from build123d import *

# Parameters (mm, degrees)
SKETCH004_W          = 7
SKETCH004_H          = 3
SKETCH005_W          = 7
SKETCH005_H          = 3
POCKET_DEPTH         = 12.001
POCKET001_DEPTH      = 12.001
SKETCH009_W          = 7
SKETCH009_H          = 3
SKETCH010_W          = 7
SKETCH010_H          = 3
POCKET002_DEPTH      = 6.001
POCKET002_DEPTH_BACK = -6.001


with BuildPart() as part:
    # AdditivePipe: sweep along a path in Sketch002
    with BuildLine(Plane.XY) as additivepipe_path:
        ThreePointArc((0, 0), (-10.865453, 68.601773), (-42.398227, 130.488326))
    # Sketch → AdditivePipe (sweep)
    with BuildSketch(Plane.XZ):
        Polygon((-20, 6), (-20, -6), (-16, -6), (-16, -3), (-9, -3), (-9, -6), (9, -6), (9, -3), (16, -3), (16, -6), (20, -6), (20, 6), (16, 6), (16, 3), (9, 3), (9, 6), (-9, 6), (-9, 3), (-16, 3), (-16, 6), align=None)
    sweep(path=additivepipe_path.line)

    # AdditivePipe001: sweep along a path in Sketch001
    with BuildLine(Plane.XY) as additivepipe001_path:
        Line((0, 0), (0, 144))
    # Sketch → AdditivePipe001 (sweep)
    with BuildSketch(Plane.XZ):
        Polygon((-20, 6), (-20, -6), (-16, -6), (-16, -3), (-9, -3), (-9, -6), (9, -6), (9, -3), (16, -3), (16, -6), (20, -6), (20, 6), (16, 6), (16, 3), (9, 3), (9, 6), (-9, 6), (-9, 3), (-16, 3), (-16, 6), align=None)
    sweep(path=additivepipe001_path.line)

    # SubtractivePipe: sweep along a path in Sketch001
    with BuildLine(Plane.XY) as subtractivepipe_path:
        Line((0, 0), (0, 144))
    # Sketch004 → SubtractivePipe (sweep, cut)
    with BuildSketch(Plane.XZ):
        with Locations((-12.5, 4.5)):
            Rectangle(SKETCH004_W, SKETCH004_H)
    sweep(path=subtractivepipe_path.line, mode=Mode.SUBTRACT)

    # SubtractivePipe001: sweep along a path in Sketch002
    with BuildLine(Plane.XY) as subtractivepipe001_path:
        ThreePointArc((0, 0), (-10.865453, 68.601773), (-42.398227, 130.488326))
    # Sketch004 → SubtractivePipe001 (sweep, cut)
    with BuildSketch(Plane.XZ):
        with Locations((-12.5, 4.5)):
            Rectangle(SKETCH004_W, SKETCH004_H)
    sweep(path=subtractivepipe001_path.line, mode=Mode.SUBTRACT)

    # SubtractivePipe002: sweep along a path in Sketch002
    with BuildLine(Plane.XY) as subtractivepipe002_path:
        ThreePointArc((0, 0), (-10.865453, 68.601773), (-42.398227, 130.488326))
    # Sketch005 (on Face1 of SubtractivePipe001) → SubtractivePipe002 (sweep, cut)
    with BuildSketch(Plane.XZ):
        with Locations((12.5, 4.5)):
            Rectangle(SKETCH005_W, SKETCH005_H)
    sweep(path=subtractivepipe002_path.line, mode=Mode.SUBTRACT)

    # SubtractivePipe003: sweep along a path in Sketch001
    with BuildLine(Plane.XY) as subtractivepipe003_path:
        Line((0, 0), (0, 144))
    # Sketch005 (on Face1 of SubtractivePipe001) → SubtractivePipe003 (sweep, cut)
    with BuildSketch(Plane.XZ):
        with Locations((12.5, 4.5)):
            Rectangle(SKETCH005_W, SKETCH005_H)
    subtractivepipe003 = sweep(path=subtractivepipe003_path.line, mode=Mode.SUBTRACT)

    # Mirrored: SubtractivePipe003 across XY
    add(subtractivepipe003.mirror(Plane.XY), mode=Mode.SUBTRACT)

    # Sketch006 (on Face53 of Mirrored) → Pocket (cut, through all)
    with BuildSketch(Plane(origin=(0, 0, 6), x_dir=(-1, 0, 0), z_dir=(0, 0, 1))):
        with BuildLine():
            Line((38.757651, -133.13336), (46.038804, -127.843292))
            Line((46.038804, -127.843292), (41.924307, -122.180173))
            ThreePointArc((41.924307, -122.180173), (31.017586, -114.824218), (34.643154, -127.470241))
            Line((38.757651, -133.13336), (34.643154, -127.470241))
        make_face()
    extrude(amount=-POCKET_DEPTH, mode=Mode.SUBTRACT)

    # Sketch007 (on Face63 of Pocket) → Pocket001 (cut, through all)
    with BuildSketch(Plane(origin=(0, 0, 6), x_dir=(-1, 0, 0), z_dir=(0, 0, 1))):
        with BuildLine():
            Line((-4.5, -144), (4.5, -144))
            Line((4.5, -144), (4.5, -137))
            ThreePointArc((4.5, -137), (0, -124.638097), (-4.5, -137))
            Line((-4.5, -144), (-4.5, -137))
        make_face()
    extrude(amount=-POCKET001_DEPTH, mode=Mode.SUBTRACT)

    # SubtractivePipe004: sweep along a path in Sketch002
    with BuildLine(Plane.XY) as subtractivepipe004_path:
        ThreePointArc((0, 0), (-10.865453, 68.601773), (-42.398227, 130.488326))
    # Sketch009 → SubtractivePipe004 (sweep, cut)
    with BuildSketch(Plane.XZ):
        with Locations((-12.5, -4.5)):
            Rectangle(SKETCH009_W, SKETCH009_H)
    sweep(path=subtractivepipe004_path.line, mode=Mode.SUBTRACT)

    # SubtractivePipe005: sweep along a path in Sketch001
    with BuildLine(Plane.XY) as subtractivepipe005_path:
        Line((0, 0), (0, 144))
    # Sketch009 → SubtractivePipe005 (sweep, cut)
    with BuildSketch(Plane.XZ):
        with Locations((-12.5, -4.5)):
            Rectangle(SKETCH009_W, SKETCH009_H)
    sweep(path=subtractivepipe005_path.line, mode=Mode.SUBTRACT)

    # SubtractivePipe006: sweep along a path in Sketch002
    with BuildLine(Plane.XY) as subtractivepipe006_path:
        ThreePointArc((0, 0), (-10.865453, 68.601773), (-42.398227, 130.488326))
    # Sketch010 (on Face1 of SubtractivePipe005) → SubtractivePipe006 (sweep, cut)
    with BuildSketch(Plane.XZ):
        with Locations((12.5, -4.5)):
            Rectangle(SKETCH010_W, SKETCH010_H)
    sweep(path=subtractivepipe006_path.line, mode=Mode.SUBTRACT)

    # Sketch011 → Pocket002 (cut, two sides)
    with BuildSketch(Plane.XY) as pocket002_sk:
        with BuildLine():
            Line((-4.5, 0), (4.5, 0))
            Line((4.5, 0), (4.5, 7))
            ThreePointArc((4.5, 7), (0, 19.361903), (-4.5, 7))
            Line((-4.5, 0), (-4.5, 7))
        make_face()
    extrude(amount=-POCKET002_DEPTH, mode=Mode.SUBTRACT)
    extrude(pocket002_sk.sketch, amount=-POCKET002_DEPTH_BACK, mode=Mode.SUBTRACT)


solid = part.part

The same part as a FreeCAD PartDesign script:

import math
import FreeCAD as App
import Part
import Sketcher

V = App.Vector
Q = App.Units.Quantity


def add_polygon(sketch, points):
    """Adds a closed chain of lines whose ends are joined by coincident constraints."""
    first, n = sketch.GeometryCount, len(points)
    for a, b in zip(points, points[1:] + points[:1]):
        sketch.addGeometry(Part.LineSegment(App.Vector(*a, 0), App.Vector(*b, 0)), False)
    for i in range(n):
        sketch.addConstraint(Sketcher.Constraint("Coincident", first + i, 2, first + (i + 1) % n, 1))

doc = App.newDocument("Part")
body = doc.addObject("PartDesign::Body", "Body")

# Sketch on XZ plane
sketch1 = body.newObject("Sketcher::SketchObject", "Sketch")
sketch1.AttachmentSupport = (doc.getObject("XZ_Plane"), [""])
sketch1.MapMode = "FlatFace"
add_polygon(sketch1, [(-20, 6), (-20, -6), (-16, -6), (-16, -3), (-9, -3), (-9, -6), (9, -6), (9, -3), (16, -3), (16, -6), (20, -6), (20, 6), (16, 6), (16, 3), (9, 3), (9, 6), (-9, 6), (-9, 3), (-16, 3), (-16, 6)])  # lines 0-19
sketch1.addConstraint(Sketcher.Constraint("Vertical", 0))
sketch1.addConstraint(Sketcher.Constraint("Horizontal", 1))
sketch1.addConstraint(Sketcher.Constraint("Vertical", 2))
sketch1.addConstraint(Sketcher.Constraint("Horizontal", 3))
sketch1.addConstraint(Sketcher.Constraint("Vertical", 4))
sketch1.addConstraint(Sketcher.Constraint("Horizontal", 5))
sketch1.addConstraint(Sketcher.Constraint("Vertical", 6))
sketch1.addConstraint(Sketcher.Constraint("Horizontal", 7))
sketch1.addConstraint(Sketcher.Constraint("Vertical", 8))
sketch1.addConstraint(Sketcher.Constraint("Horizontal", 9))
sketch1.addConstraint(Sketcher.Constraint("Vertical", 10))
sketch1.addConstraint(Sketcher.Constraint("Horizontal", 11))
sketch1.addConstraint(Sketcher.Constraint("Vertical", 12))
sketch1.addConstraint(Sketcher.Constraint("Horizontal", 13))
sketch1.addConstraint(Sketcher.Constraint("Vertical", 14))
sketch1.addConstraint(Sketcher.Constraint("Horizontal", 15))
sketch1.addConstraint(Sketcher.Constraint("Vertical", 16))
sketch1.addConstraint(Sketcher.Constraint("Horizontal", 17))
sketch1.addConstraint(Sketcher.Constraint("Vertical", 18))
sketch1.addConstraint(Sketcher.Constraint("Horizontal", 19))
sketch1.addConstraint(Sketcher.Constraint("Symmetric", 0, 2, 10, 2, -1, 1))
sketch1.addConstraint(Sketcher.Constraint("Symmetric", 2, 2, 12, 2, -1, 1))
sketch1.addConstraint(Sketcher.Constraint("Symmetric", 4, 2, 14, 2, -1, 1))
sketch1.addConstraint(Sketcher.Constraint("Symmetric", 6, 2, 16, 2, -1, 1))
sketch1.addConstraint(Sketcher.Constraint("Symmetric", 8, 2, 18, 2, -1, 1))
sketch1.addConstraint(Sketcher.Constraint("Symmetric", 3, 2, 6, 2, -2))
sketch1.addConstraint(Sketcher.Constraint("Symmetric", 1, 2, 8, 2, -2))
sketch1.addConstraint(Sketcher.Constraint("Horizontal", 1, 2, 4, 2))
sketch1.addConstraint(Sketcher.Constraint("DistanceX", 1, 1, 1, 2, Q("4 mm")))
sketch1.addConstraint(Sketcher.Constraint("DistanceX", 3, 1, 3, 2, Q("7 mm")))
sketch1.addConstraint(Sketcher.Constraint("DistanceX", 5, 1, 5, 2, Q("18 mm")))
sketch1.addConstraint(Sketcher.Constraint("DistanceY", 0, 2, 0, 1, Q("12 mm")))
sketch1.addConstraint(Sketcher.Constraint("DistanceY", 2, 1, 2, 2, Q("3 mm")))

# Sketch on XY plane
sketch2 = body.newObject("Sketcher::SketchObject", "Sketch001")
sketch2.AttachmentSupport = (doc.getObject("XY_Plane"), [""])
sketch2.MapMode = "FlatFace"
sketch2.addGeometry(Part.ArcOfCircle(Part.Circle(V(-222, 0, 0), V(0, 0, 1), 222), math.radians(0), math.radians(36)), False)
sketch2.addConstraint(Sketcher.Constraint("Coincident", 0, 1, -1, 1))
sketch2.addConstraint(Sketcher.Constraint("Radius", 0, Q("221.999993 mm")))
sketch2.addConstraint(Sketcher.Constraint("DistanceX", 0, 2, -1, 1, Q("42.398227 mm")))
sketch2.addConstraint(Sketcher.Constraint("DistanceY", -1, 1, 0, 2, Q("130.488326 mm")))
doc.recompute()

additivepipe = body.newObject("PartDesign::AdditivePipe", "AdditivePipe")
additivepipe.Profile = sketch1
additivepipe.Spine = (sketch2, ["Edge1"])

# Sketch on XZ plane
sketch3 = body.newObject("Sketcher::SketchObject", "Sketch002")
sketch3.AttachmentSupport = (doc.getObject("XZ_Plane"), [""])
sketch3.MapMode = "FlatFace"
add_polygon(sketch3, [(-20, 6), (-20, -6), (-16, -6), (-16, -3), (-9, -3), (-9, -6), (9, -6), (9, -3), (16, -3), (16, -6), (20, -6), (20, 6), (16, 6), (16, 3), (9, 3), (9, 6), (-9, 6), (-9, 3), (-16, 3), (-16, 6)])  # lines 0-19
sketch3.addConstraint(Sketcher.Constraint("Vertical", 0))
sketch3.addConstraint(Sketcher.Constraint("Horizontal", 1))
sketch3.addConstraint(Sketcher.Constraint("Vertical", 2))
sketch3.addConstraint(Sketcher.Constraint("Horizontal", 3))
sketch3.addConstraint(Sketcher.Constraint("Vertical", 4))
sketch3.addConstraint(Sketcher.Constraint("Horizontal", 5))
sketch3.addConstraint(Sketcher.Constraint("Vertical", 6))
sketch3.addConstraint(Sketcher.Constraint("Horizontal", 7))
sketch3.addConstraint(Sketcher.Constraint("Vertical", 8))
sketch3.addConstraint(Sketcher.Constraint("Horizontal", 9))
sketch3.addConstraint(Sketcher.Constraint("Vertical", 10))
sketch3.addConstraint(Sketcher.Constraint("Horizontal", 11))
sketch3.addConstraint(Sketcher.Constraint("Vertical", 12))
sketch3.addConstraint(Sketcher.Constraint("Horizontal", 13))
sketch3.addConstraint(Sketcher.Constraint("Vertical", 14))
sketch3.addConstraint(Sketcher.Constraint("Horizontal", 15))
sketch3.addConstraint(Sketcher.Constraint("Vertical", 16))
sketch3.addConstraint(Sketcher.Constraint("Horizontal", 17))
sketch3.addConstraint(Sketcher.Constraint("Vertical", 18))
sketch3.addConstraint(Sketcher.Constraint("Horizontal", 19))
sketch3.addConstraint(Sketcher.Constraint("Symmetric", 0, 2, 10, 2, -1, 1))
sketch3.addConstraint(Sketcher.Constraint("Symmetric", 2, 2, 12, 2, -1, 1))
sketch3.addConstraint(Sketcher.Constraint("Symmetric", 4, 2, 14, 2, -1, 1))
sketch3.addConstraint(Sketcher.Constraint("Symmetric", 6, 2, 16, 2, -1, 1))
sketch3.addConstraint(Sketcher.Constraint("Symmetric", 8, 2, 18, 2, -1, 1))
sketch3.addConstraint(Sketcher.Constraint("Symmetric", 3, 2, 6, 2, -2))
sketch3.addConstraint(Sketcher.Constraint("Symmetric", 1, 2, 8, 2, -2))
sketch3.addConstraint(Sketcher.Constraint("Horizontal", 1, 2, 4, 2))
sketch3.addConstraint(Sketcher.Constraint("DistanceX", 1, 1, 1, 2, Q("4 mm")))
sketch3.addConstraint(Sketcher.Constraint("DistanceX", 3, 1, 3, 2, Q("7 mm")))
sketch3.addConstraint(Sketcher.Constraint("DistanceX", 5, 1, 5, 2, Q("18 mm")))
sketch3.addConstraint(Sketcher.Constraint("DistanceY", 0, 2, 0, 1, Q("12 mm")))
sketch3.addConstraint(Sketcher.Constraint("DistanceY", 2, 1, 2, 2, Q("3 mm")))

# Sketch on XY plane
sketch4 = body.newObject("Sketcher::SketchObject", "Sketch003")
sketch4.AttachmentSupport = (doc.getObject("XY_Plane"), [""])
sketch4.MapMode = "FlatFace"
sketch4.addGeometry(Part.LineSegment(V(0, 0, 0), V(0, 144, 0)), False)
sketch4.addConstraint(Sketcher.Constraint("Vertical", 0))
sketch4.addConstraint(Sketcher.Constraint("Coincident", 0, 1, -1, 1))
sketch4.addConstraint(Sketcher.Constraint("DistanceY", 0, 1, 0, 2, Q("144 mm")))
doc.recompute()

additivepipe2 = body.newObject("PartDesign::AdditivePipe", "AdditivePipe001")
additivepipe2.Profile = sketch3
additivepipe2.Spine = (sketch4, ["Edge1"])

# Sketch on XZ plane
sketch5 = body.newObject("Sketcher::SketchObject", "Sketch004")
sketch5.AttachmentSupport = (doc.getObject("XZ_Plane"), [""])
sketch5.MapMode = "FlatFace"
add_polygon(sketch5, [(-16, 6), (-16, 3), (-9, 3), (-9, 6)])  # lines 0-3
sketch5.addConstraint(Sketcher.Constraint("Vertical", 0))
sketch5.addConstraint(Sketcher.Constraint("Horizontal", 1))
sketch5.addConstraint(Sketcher.Constraint("Vertical", 2))
sketch5.addConstraint(Sketcher.Constraint("Horizontal", 3))
sketch5.addConstraint(Sketcher.Constraint("DistanceX", 1, 1, 1, 2, Q("7 mm")))
sketch5.addConstraint(Sketcher.Constraint("DistanceY", 0, 2, 0, 1, Q("3 mm")))
sketch5.addConstraint(Sketcher.Constraint("DistanceX", 0, 2, -1, 1, Q("16 mm")))
sketch5.addConstraint(Sketcher.Constraint("DistanceY", -1, 1, 0, 2, Q("3 mm")))

# Sketch on XY plane
sketch6 = body.newObject("Sketcher::SketchObject", "Sketch005")
sketch6.AttachmentSupport = (doc.getObject("XY_Plane"), [""])
sketch6.MapMode = "FlatFace"
sketch6.addGeometry(Part.LineSegment(V(0, 0, 0), V(0, 144, 0)), False)
sketch6.addConstraint(Sketcher.Constraint("Vertical", 0))
sketch6.addConstraint(Sketcher.Constraint("Coincident", 0, 1, -1, 1))
sketch6.addConstraint(Sketcher.Constraint("DistanceY", 0, 1, 0, 2, Q("144 mm")))
doc.recompute()

subtractivepipe = body.newObject("PartDesign::SubtractivePipe", "SubtractivePipe")
subtractivepipe.Profile = sketch5
subtractivepipe.Spine = (sketch6, ["Edge1"])

# Sketch on XZ plane
sketch7 = body.newObject("Sketcher::SketchObject", "Sketch006")
sketch7.AttachmentSupport = (doc.getObject("XZ_Plane"), [""])
sketch7.MapMode = "FlatFace"
add_polygon(sketch7, [(-16, 6), (-16, 3), (-9, 3), (-9, 6)])  # lines 0-3
sketch7.addConstraint(Sketcher.Constraint("Vertical", 0))
sketch7.addConstraint(Sketcher.Constraint("Horizontal", 1))
sketch7.addConstraint(Sketcher.Constraint("Vertical", 2))
sketch7.addConstraint(Sketcher.Constraint("Horizontal", 3))
sketch7.addConstraint(Sketcher.Constraint("DistanceX", 1, 1, 1, 2, Q("7 mm")))
sketch7.addConstraint(Sketcher.Constraint("DistanceY", 0, 2, 0, 1, Q("3 mm")))
sketch7.addConstraint(Sketcher.Constraint("DistanceX", 0, 2, -1, 1, Q("16 mm")))
sketch7.addConstraint(Sketcher.Constraint("DistanceY", -1, 1, 0, 2, Q("3 mm")))

# Sketch on XY plane
sketch8 = body.newObject("Sketcher::SketchObject", "Sketch007")
sketch8.AttachmentSupport = (doc.getObject("XY_Plane"), [""])
sketch8.MapMode = "FlatFace"
sketch8.addGeometry(Part.ArcOfCircle(Part.Circle(V(-222, 0, 0), V(0, 0, 1), 222), math.radians(0), math.radians(36)), False)
sketch8.addConstraint(Sketcher.Constraint("Coincident", 0, 1, -1, 1))
sketch8.addConstraint(Sketcher.Constraint("Radius", 0, Q("221.999993 mm")))
sketch8.addConstraint(Sketcher.Constraint("DistanceX", 0, 2, -1, 1, Q("42.398227 mm")))
sketch8.addConstraint(Sketcher.Constraint("DistanceY", -1, 1, 0, 2, Q("130.488326 mm")))
doc.recompute()

subtractivepipe2 = body.newObject("PartDesign::SubtractivePipe", "SubtractivePipe001")
subtractivepipe2.Profile = sketch7
subtractivepipe2.Spine = (sketch8, ["Edge1"])

# Sketch on XZ plane
sketch9 = body.newObject("Sketcher::SketchObject", "Sketch008")
sketch9.AttachmentSupport = (doc.getObject("XZ_Plane"), [""])
sketch9.MapMode = "FlatFace"
add_polygon(sketch9, [(9, 6), (9, 3), (16, 3), (16, 6)])  # lines 0-3
sketch9.addConstraint(Sketcher.Constraint("Vertical", 0))
sketch9.addConstraint(Sketcher.Constraint("Horizontal", 1))
sketch9.addConstraint(Sketcher.Constraint("Vertical", 2))
sketch9.addConstraint(Sketcher.Constraint("Horizontal", 3))
sketch9.addConstraint(Sketcher.Constraint("DistanceX", 1, 1, 1, 2, Q("7 mm")))
sketch9.addConstraint(Sketcher.Constraint("DistanceY", 0, 2, 0, 1, Q("3 mm")))
sketch9.addConstraint(Sketcher.Constraint("DistanceX", -1, 1, 0, 2, Q("9 mm")))
sketch9.addConstraint(Sketcher.Constraint("DistanceY", -1, 1, 0, 2, Q("3 mm")))

# Sketch on XY plane
sketch10 = body.newObject("Sketcher::SketchObject", "Sketch009")
sketch10.AttachmentSupport = (doc.getObject("XY_Plane"), [""])
sketch10.MapMode = "FlatFace"
sketch10.addGeometry(Part.ArcOfCircle(Part.Circle(V(-222, 0, 0), V(0, 0, 1), 222), math.radians(0), math.radians(36)), False)
sketch10.addConstraint(Sketcher.Constraint("Coincident", 0, 1, -1, 1))
sketch10.addConstraint(Sketcher.Constraint("Radius", 0, Q("221.999993 mm")))
sketch10.addConstraint(Sketcher.Constraint("DistanceX", 0, 2, -1, 1, Q("42.398227 mm")))
sketch10.addConstraint(Sketcher.Constraint("DistanceY", -1, 1, 0, 2, Q("130.488326 mm")))
doc.recompute()

subtractivepipe3 = body.newObject("PartDesign::SubtractivePipe", "SubtractivePipe002")
subtractivepipe3.Profile = sketch9
subtractivepipe3.Spine = (sketch10, ["Edge1"])

# Sketch on XZ plane
sketch11 = body.newObject("Sketcher::SketchObject", "Sketch010")
sketch11.AttachmentSupport = (doc.getObject("XZ_Plane"), [""])
sketch11.MapMode = "FlatFace"
add_polygon(sketch11, [(9, 6), (9, 3), (16, 3), (16, 6)])  # lines 0-3
sketch11.addConstraint(Sketcher.Constraint("Vertical", 0))
sketch11.addConstraint(Sketcher.Constraint("Horizontal", 1))
sketch11.addConstraint(Sketcher.Constraint("Vertical", 2))
sketch11.addConstraint(Sketcher.Constraint("Horizontal", 3))
sketch11.addConstraint(Sketcher.Constraint("DistanceX", 1, 1, 1, 2, Q("7 mm")))
sketch11.addConstraint(Sketcher.Constraint("DistanceY", 0, 2, 0, 1, Q("3 mm")))
sketch11.addConstraint(Sketcher.Constraint("DistanceX", -1, 1, 0, 2, Q("9 mm")))
sketch11.addConstraint(Sketcher.Constraint("DistanceY", -1, 1, 0, 2, Q("3 mm")))

# Sketch on XY plane
sketch12 = body.newObject("Sketcher::SketchObject", "Sketch011")
sketch12.AttachmentSupport = (doc.getObject("XY_Plane"), [""])
sketch12.MapMode = "FlatFace"
sketch12.addGeometry(Part.LineSegment(V(0, 0, 0), V(0, 144, 0)), False)
sketch12.addConstraint(Sketcher.Constraint("Vertical", 0))
sketch12.addConstraint(Sketcher.Constraint("Coincident", 0, 1, -1, 1))
sketch12.addConstraint(Sketcher.Constraint("DistanceY", 0, 1, 0, 2, Q("144 mm")))
doc.recompute()

subtractivepipe4 = body.newObject("PartDesign::SubtractivePipe", "SubtractivePipe003")
subtractivepipe4.Profile = sketch11
subtractivepipe4.Spine = (sketch12, ["Edge1"])
doc.recompute()

mirrored = body.newObject("PartDesign::Mirrored", "Mirrored")
mirrored.Originals = [subtractivepipe4]
mirrored.MirrorPlane = (doc.getObject("XY_Plane"), [""])
body.Tip = mirrored

# Sketch on XY plane
sketch13 = body.newObject("Sketcher::SketchObject", "Sketch012")
sketch13.AttachmentSupport = (doc.getObject("XY_Plane"), [""])
sketch13.MapMode = "FlatFace"
sketch13.AttachmentOffset = App.Placement(V(0, 0, 6), App.Rotation())
sketch13.addGeometry(Part.LineSegment(V(-39, 133, 0), V(-46, 128, 0)), False)
sketch13.addGeometry(Part.LineSegment(V(-46, 128, 0), V(-42, 122, 0)), False)
sketch13.addGeometry(Part.ArcOfCircle(Part.Circle(V(-35, 120, 0), V(0, 0, 1), 7), math.radians(166), math.radians(446)), False)
sketch13.addGeometry(Part.LineSegment(V(-35, 127, 0), V(-39, 133, 0)), False)
sketch13.addConstraint(Sketcher.Constraint("Coincident", 0, 2, 1, 1))
sketch13.addConstraint(Sketcher.Constraint("Coincident", 1, 2, 2, 1))
sketch13.addConstraint(Sketcher.Constraint("Coincident", 2, 2, 3, 1))
sketch13.addConstraint(Sketcher.Constraint("Coincident", 3, 2, 0, 1))
sketch13.addConstraint(Sketcher.Constraint("Perpendicular", 0, 1))
sketch13.addConstraint(Sketcher.Constraint("Parallel", 1, 3))
sketch13.addConstraint(Sketcher.Constraint("Equal", 1, 3))
sketch13.addConstraint(Sketcher.Constraint("Radius", 2, Q("7 mm")))
sketch13.addConstraint(Sketcher.Constraint("Angle", 0, Q("-143.999996 deg")))
sketch13.addConstraint(Sketcher.Constraint("Distance", 0, Q("9 mm")))
sketch13.addConstraint(Sketcher.Constraint("Distance", 1, Q("7 mm")))
sketch13.addConstraint(Sketcher.Constraint("DistanceY", -1, 1, 2, 2, Q("127.470241 mm")))
sketch13.addConstraint(Sketcher.Constraint("DistanceX", 3, 2, -1, 1, Q("38.757651 mm")))
pocket1 = body.newObject("PartDesign::Pocket", "Pocket")
pocket1.Profile = sketch13
pocket1.Type = "ThroughAll"

# Sketch on XY plane
sketch14 = body.newObject("Sketcher::SketchObject", "Sketch013")
sketch14.AttachmentSupport = (doc.getObject("XY_Plane"), [""])
sketch14.MapMode = "FlatFace"
sketch14.AttachmentOffset = App.Placement(V(0, 0, 6), App.Rotation())
sketch14.addGeometry(Part.LineSegment(V(4, 144, 0), V(-4, 144, 0)), False)
sketch14.addGeometry(Part.LineSegment(V(-4, 144, 0), V(-4, 137, 0)), False)
sketch14.addGeometry(Part.ArcOfCircle(Part.Circle(V(0, 132, 0), V(0, 0, 1), 7), math.radians(130), math.radians(410)), False)
sketch14.addGeometry(Part.LineSegment(V(4, 137, 0), V(4, 144, 0)), False)
sketch14.addConstraint(Sketcher.Constraint("Coincident", 0, 2, 1, 1))
sketch14.addConstraint(Sketcher.Constraint("Coincident", 1, 2, 2, 1))
sketch14.addConstraint(Sketcher.Constraint("Coincident", 2, 2, 3, 1))
sketch14.addConstraint(Sketcher.Constraint("Coincident", 3, 2, 0, 1))
sketch14.addConstraint(Sketcher.Constraint("Horizontal", 0))
sketch14.addConstraint(Sketcher.Constraint("Vertical", 1))
sketch14.addConstraint(Sketcher.Constraint("Vertical", 3))
sketch14.addConstraint(Sketcher.Constraint("Symmetric", 1, 2, 2, 2, -2))
sketch14.addConstraint(Sketcher.Constraint("Radius", 2, Q("7 mm")))
sketch14.addConstraint(Sketcher.Constraint("DistanceX", 0, 2, 0, 1, Q("9 mm")))
sketch14.addConstraint(Sketcher.Constraint("DistanceY", 1, 2, 1, 1, Q("7 mm")))
sketch14.addConstraint(Sketcher.Constraint("DistanceY", -1, 1, 0, 2, Q("144 mm")))
pocket2 = body.newObject("PartDesign::Pocket", "Pocket001")
pocket2.Profile = sketch14
pocket2.Type = "ThroughAll"

# Sketch on XZ plane
sketch15 = body.newObject("Sketcher::SketchObject", "Sketch014")
sketch15.AttachmentSupport = (doc.getObject("XZ_Plane"), [""])
sketch15.MapMode = "FlatFace"
add_polygon(sketch15, [(-16, -3), (-16, -6), (-9, -6), (-9, -3)])  # lines 0-3
sketch15.addConstraint(Sketcher.Constraint("Vertical", 0))
sketch15.addConstraint(Sketcher.Constraint("Horizontal", 1))
sketch15.addConstraint(Sketcher.Constraint("Vertical", 2))
sketch15.addConstraint(Sketcher.Constraint("Horizontal", 3))
sketch15.addConstraint(Sketcher.Constraint("DistanceX", 1, 1, 1, 2, Q("7 mm")))
sketch15.addConstraint(Sketcher.Constraint("DistanceY", 0, 2, 0, 1, Q("3 mm")))
sketch15.addConstraint(Sketcher.Constraint("DistanceX", 0, 2, -1, 1, Q("16 mm")))
sketch15.addConstraint(Sketcher.Constraint("DistanceY", 0, 2, -1, 1, Q("6 mm")))

# Sketch on XY plane
sketch16 = body.newObject("Sketcher::SketchObject", "Sketch015")
sketch16.AttachmentSupport = (doc.getObject("XY_Plane"), [""])
sketch16.MapMode = "FlatFace"
sketch16.addGeometry(Part.ArcOfCircle(Part.Circle(V(-222, 0, 0), V(0, 0, 1), 222), math.radians(0), math.radians(36)), False)
sketch16.addConstraint(Sketcher.Constraint("Coincident", 0, 1, -1, 1))
sketch16.addConstraint(Sketcher.Constraint("Radius", 0, Q("221.999993 mm")))
sketch16.addConstraint(Sketcher.Constraint("DistanceX", 0, 2, -1, 1, Q("42.398227 mm")))
sketch16.addConstraint(Sketcher.Constraint("DistanceY", -1, 1, 0, 2, Q("130.488326 mm")))
doc.recompute()

subtractivepipe5 = body.newObject("PartDesign::SubtractivePipe", "SubtractivePipe004")
subtractivepipe5.Profile = sketch15
subtractivepipe5.Spine = (sketch16, ["Edge1"])

# Sketch on XZ plane
sketch17 = body.newObject("Sketcher::SketchObject", "Sketch016")
sketch17.AttachmentSupport = (doc.getObject("XZ_Plane"), [""])
sketch17.MapMode = "FlatFace"
add_polygon(sketch17, [(-16, -3), (-16, -6), (-9, -6), (-9, -3)])  # lines 0-3
sketch17.addConstraint(Sketcher.Constraint("Vertical", 0))
sketch17.addConstraint(Sketcher.Constraint("Horizontal", 1))
sketch17.addConstraint(Sketcher.Constraint("Vertical", 2))
sketch17.addConstraint(Sketcher.Constraint("Horizontal", 3))
sketch17.addConstraint(Sketcher.Constraint("DistanceX", 1, 1, 1, 2, Q("7 mm")))
sketch17.addConstraint(Sketcher.Constraint("DistanceY", 0, 2, 0, 1, Q("3 mm")))
sketch17.addConstraint(Sketcher.Constraint("DistanceX", 0, 2, -1, 1, Q("16 mm")))
sketch17.addConstraint(Sketcher.Constraint("DistanceY", 0, 2, -1, 1, Q("6 mm")))

# Sketch on XY plane
sketch18 = body.newObject("Sketcher::SketchObject", "Sketch017")
sketch18.AttachmentSupport = (doc.getObject("XY_Plane"), [""])
sketch18.MapMode = "FlatFace"
sketch18.addGeometry(Part.LineSegment(V(0, 0, 0), V(0, 144, 0)), False)
sketch18.addConstraint(Sketcher.Constraint("Vertical", 0))
sketch18.addConstraint(Sketcher.Constraint("Coincident", 0, 1, -1, 1))
sketch18.addConstraint(Sketcher.Constraint("DistanceY", 0, 1, 0, 2, Q("144 mm")))
doc.recompute()

subtractivepipe6 = body.newObject("PartDesign::SubtractivePipe", "SubtractivePipe005")
subtractivepipe6.Profile = sketch17
subtractivepipe6.Spine = (sketch18, ["Edge1"])

# Sketch on XZ plane
sketch19 = body.newObject("Sketcher::SketchObject", "Sketch018")
sketch19.AttachmentSupport = (doc.getObject("XZ_Plane"), [""])
sketch19.MapMode = "FlatFace"
add_polygon(sketch19, [(9, -3), (9, -6), (16, -6), (16, -3)])  # lines 0-3
sketch19.addConstraint(Sketcher.Constraint("Vertical", 0))
sketch19.addConstraint(Sketcher.Constraint("Horizontal", 1))
sketch19.addConstraint(Sketcher.Constraint("Vertical", 2))
sketch19.addConstraint(Sketcher.Constraint("Horizontal", 3))
sketch19.addConstraint(Sketcher.Constraint("DistanceX", 1, 1, 1, 2, Q("7 mm")))
sketch19.addConstraint(Sketcher.Constraint("DistanceY", 0, 2, 0, 1, Q("3 mm")))
sketch19.addConstraint(Sketcher.Constraint("DistanceX", -1, 1, 0, 2, Q("9 mm")))
sketch19.addConstraint(Sketcher.Constraint("DistanceY", 0, 2, -1, 1, Q("6 mm")))

# Sketch on XY plane
sketch20 = body.newObject("Sketcher::SketchObject", "Sketch019")
sketch20.AttachmentSupport = (doc.getObject("XY_Plane"), [""])
sketch20.MapMode = "FlatFace"
sketch20.addGeometry(Part.ArcOfCircle(Part.Circle(V(-222, 0, 0), V(0, 0, 1), 222), math.radians(0), math.radians(36)), False)
sketch20.addConstraint(Sketcher.Constraint("Coincident", 0, 1, -1, 1))
sketch20.addConstraint(Sketcher.Constraint("Radius", 0, Q("221.999993 mm")))
sketch20.addConstraint(Sketcher.Constraint("DistanceX", 0, 2, -1, 1, Q("42.398227 mm")))
sketch20.addConstraint(Sketcher.Constraint("DistanceY", -1, 1, 0, 2, Q("130.488326 mm")))
doc.recompute()

subtractivepipe7 = body.newObject("PartDesign::SubtractivePipe", "SubtractivePipe006")
subtractivepipe7.Profile = sketch19
subtractivepipe7.Spine = (sketch20, ["Edge1"])

# Sketch on XY plane
sketch21 = body.newObject("Sketcher::SketchObject", "Sketch020")
sketch21.AttachmentSupport = (doc.getObject("XY_Plane"), [""])
sketch21.MapMode = "FlatFace"
sketch21.addGeometry(Part.LineSegment(V(-4, 0, 0), V(4, 0, 0)), False)
sketch21.addGeometry(Part.LineSegment(V(4, 0, 0), V(4, 7, 0)), False)
sketch21.addGeometry(Part.ArcOfCircle(Part.Circle(V(0, 12, 0), V(0, 0, 1), 7), math.radians(-50), math.radians(230)), False)
sketch21.addGeometry(Part.LineSegment(V(-4, 7, 0), V(-4, 0, 0)), False)
sketch21.addConstraint(Sketcher.Constraint("Coincident", 0, 2, 1, 1))
sketch21.addConstraint(Sketcher.Constraint("Coincident", 1, 2, 2, 1))
sketch21.addConstraint(Sketcher.Constraint("Coincident", 2, 2, 3, 1))
sketch21.addConstraint(Sketcher.Constraint("Coincident", 3, 2, 0, 1))
sketch21.addConstraint(Sketcher.Constraint("Horizontal", 0))
sketch21.addConstraint(Sketcher.Constraint("Vertical", 1))
sketch21.addConstraint(Sketcher.Constraint("Vertical", 3))
sketch21.addConstraint(Sketcher.Constraint("Symmetric", 0, 2, 3, 2, -1, 1))
sketch21.addConstraint(Sketcher.Constraint("PointOnObject", 2, 3, -2))
sketch21.addConstraint(Sketcher.Constraint("Radius", 2, Q("7 mm")))
sketch21.addConstraint(Sketcher.Constraint("DistanceX", 0, 1, 0, 2, Q("9 mm")))
sketch21.addConstraint(Sketcher.Constraint("DistanceY", 1, 1, 1, 2, Q("7 mm")))
pocket3 = body.newObject("PartDesign::Pocket", "Pocket002")
pocket3.Profile = sketch21
pocket3.Type = "ThroughAll"
pocket3.Midplane = True

doc.recompute()
